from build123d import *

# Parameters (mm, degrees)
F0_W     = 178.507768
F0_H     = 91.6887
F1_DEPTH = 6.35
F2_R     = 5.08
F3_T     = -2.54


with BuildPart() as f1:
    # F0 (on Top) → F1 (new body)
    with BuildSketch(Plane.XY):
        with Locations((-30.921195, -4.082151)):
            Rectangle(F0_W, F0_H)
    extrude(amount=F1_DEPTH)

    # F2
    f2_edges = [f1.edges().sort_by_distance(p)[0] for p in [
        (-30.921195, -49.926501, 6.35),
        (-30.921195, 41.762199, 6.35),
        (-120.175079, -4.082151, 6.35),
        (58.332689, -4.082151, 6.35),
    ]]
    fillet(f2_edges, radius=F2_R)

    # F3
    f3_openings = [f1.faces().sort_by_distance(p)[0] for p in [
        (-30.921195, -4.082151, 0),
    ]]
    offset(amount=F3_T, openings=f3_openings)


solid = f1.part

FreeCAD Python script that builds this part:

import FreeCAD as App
import Part
import Sketcher


def edges_at(feature, points):
    """Names of the edges that pass closest to the given points."""
    edges = feature.Shape.Edges
    near = lambda p: min(range(len(edges)), key=lambda i: edges[i].distToShape(Part.Vertex(*p))[0])
    return sorted({f"Edge{near(p) + 1}" for p in points})


def faces_at(feature, points):
    """Names of the faces that lie closest to the given points."""
    faces = feature.Shape.Faces
    near = lambda p: min(range(len(faces)), key=lambda i: faces[i].distToShape(Part.Vertex(*p))[0])
    return sorted({f"Face{near(p) + 1}" for p in points})

doc = App.newDocument("Part")
params = doc.addObject("Spreadsheet::Sheet", "Params")
for row, (alias, value) in enumerate([
    ("pad1_length", "0.25 in"),
    ("fillet_radius", "0.2 in"),
    ("thickness_wall", "0.1 in"),
], start=1):
    params.set(f"A{row}", alias)
    params.set(f"B{row}", "=" + value)
    params.setAlias(f"B{row}", alias)

body = doc.addObject("PartDesign::Body", "Body")

# Sketch on XY plane
sketch1 = body.newObject("Sketcher::SketchObject", "Sketch")
sketch1.AttachmentSupport = (doc.getObject("XY_Plane"), [""])
sketch1.MapMode = "FlatFace"
sketch1.addGeometry([
    Part.LineSegment(App.Vector(-120, 42, 0), App.Vector(-120, -50, 0)),
    Part.LineSegment(App.Vector(-120, -50, 0), App.Vector(58, -50, 0)),
    Part.LineSegment(App.Vector(58, -50, 0), App.Vector(58, 42, 0)),
    Part.LineSegment(App.Vector(58, 42, 0), App.Vector(-120, 42, 0)),
], False)
sketch1.addConstraint([
    Sketcher.Constraint("Coincident", 0, 2, 1, 1),
    Sketcher.Constraint("Coincident", 1, 2, 2, 1),
    Sketcher.Constraint("Coincident", 2, 2, 3, 1),
    Sketcher.Constraint("Coincident", 3, 2, 0, 1),
    Sketcher.Constraint("Vertical", 0),
    Sketcher.Constraint("Horizontal", 1),
    Sketcher.Constraint("Vertical", 2),
    Sketcher.Constraint("Horizontal", 3),
    Sketcher.Constraint("DistanceY", 0, 2, 0, 1, 91.6887),
    Sketcher.Constraint("DistanceX", 1, 1, 1, 2, 178.507768),
    Sketcher.Constraint("DistanceY", 0, 2, -1, 1, 49.926501),
    Sketcher.Constraint("DistanceX", 0, 2, -1, 1, 120.175079),
])
pad1 = body.newObject("PartDesign::Pad", "Pad")
pad1.Profile = sketch1
pad1.setExpression("Length", "Params.pad1_length")
doc.recompute()

fillet = body.newObject("PartDesign::Fillet", "Fillet")
fillet.Base = (pad1, edges_at(pad1, [
    (-30.921, -49.927, 6.35),
    (-30.921, 41.762, 6.35),
    (-120.175, -4.082, 6.35),
    (58.333, -4.082, 6.35),
]))
fillet.setExpression("Radius", "Params.fillet_radius")
doc.recompute()

thickness = body.newObject("PartDesign::Thickness", "Thickness")
thickness.Base = (fillet, faces_at(fillet, [(-30.921, -4.082, 0)]))
thickness.setExpression("Value", "Params.thickness_wall")
thickness.Reversed = True
thickness.Join = "Arc"

doc.recompute()
